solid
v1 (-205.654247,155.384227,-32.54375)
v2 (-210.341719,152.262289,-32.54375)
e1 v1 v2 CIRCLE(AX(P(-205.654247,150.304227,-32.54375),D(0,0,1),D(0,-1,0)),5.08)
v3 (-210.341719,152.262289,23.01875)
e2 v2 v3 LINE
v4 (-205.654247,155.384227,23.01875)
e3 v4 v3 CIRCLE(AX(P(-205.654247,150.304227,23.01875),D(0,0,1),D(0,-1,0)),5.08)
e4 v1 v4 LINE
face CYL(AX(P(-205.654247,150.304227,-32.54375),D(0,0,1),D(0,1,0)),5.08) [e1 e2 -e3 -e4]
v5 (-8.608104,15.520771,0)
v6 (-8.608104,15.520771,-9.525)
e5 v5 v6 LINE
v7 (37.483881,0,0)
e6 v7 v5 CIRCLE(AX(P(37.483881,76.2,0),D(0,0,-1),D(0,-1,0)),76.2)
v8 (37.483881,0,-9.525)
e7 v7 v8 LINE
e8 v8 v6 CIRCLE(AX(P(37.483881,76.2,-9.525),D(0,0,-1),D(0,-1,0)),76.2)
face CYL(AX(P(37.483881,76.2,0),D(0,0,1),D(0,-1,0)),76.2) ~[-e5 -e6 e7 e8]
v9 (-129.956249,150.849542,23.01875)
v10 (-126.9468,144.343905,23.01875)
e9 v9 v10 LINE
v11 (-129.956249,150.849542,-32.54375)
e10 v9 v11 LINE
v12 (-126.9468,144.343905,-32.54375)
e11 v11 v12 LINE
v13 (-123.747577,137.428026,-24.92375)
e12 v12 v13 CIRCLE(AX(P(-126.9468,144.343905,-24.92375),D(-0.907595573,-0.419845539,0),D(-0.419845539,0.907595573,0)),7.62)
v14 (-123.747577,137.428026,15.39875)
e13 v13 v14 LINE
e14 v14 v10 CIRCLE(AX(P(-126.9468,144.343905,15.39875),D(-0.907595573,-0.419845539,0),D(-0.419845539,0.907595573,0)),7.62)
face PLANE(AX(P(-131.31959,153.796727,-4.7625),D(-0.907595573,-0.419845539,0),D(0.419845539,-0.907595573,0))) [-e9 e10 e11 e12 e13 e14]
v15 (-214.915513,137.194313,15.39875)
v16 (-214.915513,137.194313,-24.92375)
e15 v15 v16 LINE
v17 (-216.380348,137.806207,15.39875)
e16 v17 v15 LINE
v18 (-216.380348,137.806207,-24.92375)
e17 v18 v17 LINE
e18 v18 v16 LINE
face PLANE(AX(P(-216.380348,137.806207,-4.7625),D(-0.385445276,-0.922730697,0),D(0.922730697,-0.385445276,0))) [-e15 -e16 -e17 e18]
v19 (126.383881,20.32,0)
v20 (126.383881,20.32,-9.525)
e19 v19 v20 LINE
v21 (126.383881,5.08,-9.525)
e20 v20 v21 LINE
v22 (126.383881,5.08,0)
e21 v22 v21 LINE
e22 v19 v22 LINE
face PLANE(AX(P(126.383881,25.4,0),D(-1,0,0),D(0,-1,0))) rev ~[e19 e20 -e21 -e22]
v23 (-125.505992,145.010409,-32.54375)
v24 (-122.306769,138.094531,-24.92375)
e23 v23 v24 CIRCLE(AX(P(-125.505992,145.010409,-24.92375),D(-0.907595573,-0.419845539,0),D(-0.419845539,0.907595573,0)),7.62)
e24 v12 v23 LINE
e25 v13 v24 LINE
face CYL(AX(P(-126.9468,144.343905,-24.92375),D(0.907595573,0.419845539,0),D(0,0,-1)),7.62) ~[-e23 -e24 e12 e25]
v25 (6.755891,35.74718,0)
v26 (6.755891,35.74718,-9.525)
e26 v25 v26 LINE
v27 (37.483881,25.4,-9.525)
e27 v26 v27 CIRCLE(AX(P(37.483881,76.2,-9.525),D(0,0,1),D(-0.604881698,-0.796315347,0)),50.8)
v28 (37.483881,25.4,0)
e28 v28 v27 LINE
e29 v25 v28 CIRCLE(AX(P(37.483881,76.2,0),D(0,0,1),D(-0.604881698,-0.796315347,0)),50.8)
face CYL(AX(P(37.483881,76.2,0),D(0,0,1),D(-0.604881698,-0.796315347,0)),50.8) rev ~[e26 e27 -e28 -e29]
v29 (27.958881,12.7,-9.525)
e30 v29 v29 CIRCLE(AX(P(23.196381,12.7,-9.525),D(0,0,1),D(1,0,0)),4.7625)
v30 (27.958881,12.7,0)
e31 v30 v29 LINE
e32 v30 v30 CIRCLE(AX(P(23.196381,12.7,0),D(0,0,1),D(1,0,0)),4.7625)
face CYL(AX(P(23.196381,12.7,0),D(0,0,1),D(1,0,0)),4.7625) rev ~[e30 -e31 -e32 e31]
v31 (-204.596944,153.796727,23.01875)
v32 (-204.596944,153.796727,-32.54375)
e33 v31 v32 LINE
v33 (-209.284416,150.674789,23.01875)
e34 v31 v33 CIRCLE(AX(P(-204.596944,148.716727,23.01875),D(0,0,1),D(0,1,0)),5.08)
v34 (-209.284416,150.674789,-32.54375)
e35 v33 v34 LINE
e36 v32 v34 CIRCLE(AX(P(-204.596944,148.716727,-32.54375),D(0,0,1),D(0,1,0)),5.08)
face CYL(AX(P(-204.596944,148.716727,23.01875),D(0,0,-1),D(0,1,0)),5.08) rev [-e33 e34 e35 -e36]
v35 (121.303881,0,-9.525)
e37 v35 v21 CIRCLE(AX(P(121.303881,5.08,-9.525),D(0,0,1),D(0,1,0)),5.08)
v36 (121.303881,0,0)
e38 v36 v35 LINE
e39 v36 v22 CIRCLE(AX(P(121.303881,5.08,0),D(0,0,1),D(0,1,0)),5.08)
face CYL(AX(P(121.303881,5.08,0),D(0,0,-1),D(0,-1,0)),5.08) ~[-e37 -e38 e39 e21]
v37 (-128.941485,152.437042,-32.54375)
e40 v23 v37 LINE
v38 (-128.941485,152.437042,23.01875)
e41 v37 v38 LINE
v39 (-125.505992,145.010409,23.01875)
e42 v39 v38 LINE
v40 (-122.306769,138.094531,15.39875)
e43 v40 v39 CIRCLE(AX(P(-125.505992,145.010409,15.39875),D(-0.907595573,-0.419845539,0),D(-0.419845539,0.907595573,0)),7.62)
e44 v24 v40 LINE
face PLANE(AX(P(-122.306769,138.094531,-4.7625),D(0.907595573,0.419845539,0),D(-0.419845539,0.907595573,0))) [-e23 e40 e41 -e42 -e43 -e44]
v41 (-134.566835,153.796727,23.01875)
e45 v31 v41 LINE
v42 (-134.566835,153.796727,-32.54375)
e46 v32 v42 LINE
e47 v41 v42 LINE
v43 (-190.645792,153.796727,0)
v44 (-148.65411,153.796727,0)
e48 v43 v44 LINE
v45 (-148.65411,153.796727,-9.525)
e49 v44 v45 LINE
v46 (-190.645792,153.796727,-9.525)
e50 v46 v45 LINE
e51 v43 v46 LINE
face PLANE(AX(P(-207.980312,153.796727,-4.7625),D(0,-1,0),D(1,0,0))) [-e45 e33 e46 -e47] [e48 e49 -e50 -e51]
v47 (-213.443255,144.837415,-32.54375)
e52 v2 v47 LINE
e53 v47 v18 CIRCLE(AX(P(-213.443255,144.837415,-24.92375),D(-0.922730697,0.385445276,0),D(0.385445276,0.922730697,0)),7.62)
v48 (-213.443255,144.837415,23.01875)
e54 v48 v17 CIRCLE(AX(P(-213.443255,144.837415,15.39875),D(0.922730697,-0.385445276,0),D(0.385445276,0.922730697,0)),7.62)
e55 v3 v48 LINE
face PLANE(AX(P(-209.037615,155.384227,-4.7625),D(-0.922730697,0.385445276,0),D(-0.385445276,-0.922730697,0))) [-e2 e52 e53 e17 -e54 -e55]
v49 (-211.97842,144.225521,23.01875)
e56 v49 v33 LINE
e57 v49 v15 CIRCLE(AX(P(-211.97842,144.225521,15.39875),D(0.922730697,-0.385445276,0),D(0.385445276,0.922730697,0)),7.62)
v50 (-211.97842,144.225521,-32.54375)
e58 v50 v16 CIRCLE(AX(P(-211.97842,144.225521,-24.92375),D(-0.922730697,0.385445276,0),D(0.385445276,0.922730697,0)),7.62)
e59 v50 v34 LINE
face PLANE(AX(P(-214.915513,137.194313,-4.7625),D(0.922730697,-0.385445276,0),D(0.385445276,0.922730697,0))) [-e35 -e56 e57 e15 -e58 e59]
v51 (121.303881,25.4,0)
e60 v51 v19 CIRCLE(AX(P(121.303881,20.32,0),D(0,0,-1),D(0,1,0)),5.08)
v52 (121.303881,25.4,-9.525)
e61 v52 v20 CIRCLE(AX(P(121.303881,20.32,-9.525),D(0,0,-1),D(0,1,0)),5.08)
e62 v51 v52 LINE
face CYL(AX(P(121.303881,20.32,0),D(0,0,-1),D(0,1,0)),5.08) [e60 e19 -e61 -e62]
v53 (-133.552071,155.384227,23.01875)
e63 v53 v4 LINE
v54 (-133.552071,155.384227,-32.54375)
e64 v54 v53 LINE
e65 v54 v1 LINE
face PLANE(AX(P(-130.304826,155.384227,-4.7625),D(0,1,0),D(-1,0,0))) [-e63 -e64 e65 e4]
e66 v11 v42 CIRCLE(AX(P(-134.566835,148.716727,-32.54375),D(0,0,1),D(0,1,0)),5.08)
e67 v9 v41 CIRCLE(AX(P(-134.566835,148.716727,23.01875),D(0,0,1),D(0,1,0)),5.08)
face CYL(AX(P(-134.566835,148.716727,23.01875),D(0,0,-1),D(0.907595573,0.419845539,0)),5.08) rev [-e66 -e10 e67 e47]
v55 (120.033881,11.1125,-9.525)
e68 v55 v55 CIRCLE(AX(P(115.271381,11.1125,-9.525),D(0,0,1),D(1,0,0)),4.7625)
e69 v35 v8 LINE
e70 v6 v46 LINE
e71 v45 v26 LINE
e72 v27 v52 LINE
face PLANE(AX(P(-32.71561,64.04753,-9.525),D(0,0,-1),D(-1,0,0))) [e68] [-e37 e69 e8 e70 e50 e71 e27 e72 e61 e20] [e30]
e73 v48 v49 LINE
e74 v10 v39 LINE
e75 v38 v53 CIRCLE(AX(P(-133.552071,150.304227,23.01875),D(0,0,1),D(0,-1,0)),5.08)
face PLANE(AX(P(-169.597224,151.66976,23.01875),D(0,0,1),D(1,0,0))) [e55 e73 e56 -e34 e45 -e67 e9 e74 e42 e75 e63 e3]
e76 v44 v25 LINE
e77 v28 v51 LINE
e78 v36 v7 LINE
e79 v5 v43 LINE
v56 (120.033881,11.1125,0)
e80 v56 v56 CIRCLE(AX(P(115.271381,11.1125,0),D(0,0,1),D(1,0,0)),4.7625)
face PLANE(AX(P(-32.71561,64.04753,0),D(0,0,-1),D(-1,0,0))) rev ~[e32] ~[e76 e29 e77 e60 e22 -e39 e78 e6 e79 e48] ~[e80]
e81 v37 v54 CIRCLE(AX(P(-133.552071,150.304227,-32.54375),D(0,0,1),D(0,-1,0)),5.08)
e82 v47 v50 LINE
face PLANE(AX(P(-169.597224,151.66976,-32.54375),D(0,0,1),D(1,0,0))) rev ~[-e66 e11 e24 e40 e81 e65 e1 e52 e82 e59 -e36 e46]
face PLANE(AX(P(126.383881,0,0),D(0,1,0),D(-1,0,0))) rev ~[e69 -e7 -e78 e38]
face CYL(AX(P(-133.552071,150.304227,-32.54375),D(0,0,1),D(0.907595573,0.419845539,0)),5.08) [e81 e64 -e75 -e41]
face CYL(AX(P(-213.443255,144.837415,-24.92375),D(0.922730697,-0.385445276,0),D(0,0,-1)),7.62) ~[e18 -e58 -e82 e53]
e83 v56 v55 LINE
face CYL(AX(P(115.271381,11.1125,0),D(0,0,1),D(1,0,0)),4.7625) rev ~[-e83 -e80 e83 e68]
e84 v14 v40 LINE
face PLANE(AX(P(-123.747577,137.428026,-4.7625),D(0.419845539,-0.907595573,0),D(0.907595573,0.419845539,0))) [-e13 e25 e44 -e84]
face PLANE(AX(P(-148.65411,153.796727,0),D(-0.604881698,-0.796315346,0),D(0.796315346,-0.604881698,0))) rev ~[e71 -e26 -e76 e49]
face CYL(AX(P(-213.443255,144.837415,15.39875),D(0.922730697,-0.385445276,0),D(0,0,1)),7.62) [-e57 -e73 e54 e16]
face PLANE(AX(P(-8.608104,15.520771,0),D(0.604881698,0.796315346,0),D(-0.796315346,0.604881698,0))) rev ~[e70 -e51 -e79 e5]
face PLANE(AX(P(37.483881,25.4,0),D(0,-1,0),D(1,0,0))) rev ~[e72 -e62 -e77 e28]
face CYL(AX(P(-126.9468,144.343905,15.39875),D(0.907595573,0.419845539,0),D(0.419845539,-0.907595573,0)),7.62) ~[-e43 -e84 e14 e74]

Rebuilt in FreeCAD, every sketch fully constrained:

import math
import FreeCAD as App
import Part
import Sketcher

V = App.Vector
Q = App.Units.Quantity


def edges_at(feature, points):
    """Names of the edges that pass closest to the given points."""
    edges = feature.Shape.Edges
    near = lambda p: min(range(len(edges)), key=lambda i: edges[i].distToShape(Part.Vertex(*p))[0])
    return sorted({f"Edge{near(p) + 1}" for p in points})

doc = App.newDocument("Part")
body = doc.addObject("PartDesign::Body", "Body")

sketch1 = body.newObject("Sketcher::SketchObject", "Sketch")
sketch1.AttachmentSupport = (doc.getObject("XY_Plane"), [""])
sketch1.MapMode = "FlatFace"
sketch1.addGeometry(Part.LineSegment(V(37.483881, 0, 0), V(126.383881, 0, 0)), False)
sketch1.addGeometry(Part.LineSegment(V(126.383881, 0, 0), V(126.383881, 25.4, 0)), False)
sketch1.addGeometry(Part.LineSegment(V(126.383881, 25.4, 0), V(37.483881, 25.4, 0)), False)
sketch1.addGeometry(Part.ArcOfCircle(Part.Circle(V(37.483881, 76.2, 0), V(0, 0, 1), 50.8), math.radians(-127.220329), math.radians(-90)), False)
sketch1.addGeometry(Part.LineSegment(V(6.755891, 35.74718, 0), V(-148.65411, 153.796727, 0)), False)
sketch1.addGeometry(Part.LineSegment(V(-148.65411, 153.796727, 0), V(-190.645792, 153.796727, 0)), False)
sketch1.addGeometry(Part.LineSegment(V(-190.645792, 153.796727, 0), V(-8.608104, 15.520771, 0)), False)
sketch1.addGeometry(Part.ArcOfCircle(Part.Circle(V(37.483881, 76.2, 0), V(0, 0, 1), 76.2), math.radians(-127.220329), math.radians(-90)), False)
sketch1.addConstraint(Sketcher.Constraint("Coincident", 0, 2, 1, 1))
sketch1.addConstraint(Sketcher.Constraint("Coincident", 1, 2, 2, 1))
sketch1.addConstraint(Sketcher.Constraint("Tangent", 2, 2, 3, 2))
sketch1.addConstraint(Sketcher.Constraint("Tangent", 3, 1, 4, 1))
sketch1.addConstraint(Sketcher.Constraint("Coincident", 4, 2, 5, 1))
sketch1.addConstraint(Sketcher.Constraint("Coincident", 5, 2, 6, 1))
sketch1.addConstraint(Sketcher.Constraint("Tangent", 6, 2, 7, 1))
sketch1.addConstraint(Sketcher.Constraint("Tangent", 7, 2, 0, 1))
sketch1.addConstraint(Sketcher.Constraint("Horizontal", 0))
sketch1.addConstraint(Sketcher.Constraint("Vertical", 1))
sketch1.addConstraint(Sketcher.Constraint("Horizontal", 2))
sketch1.addConstraint(Sketcher.Constraint("Horizontal", 5))
sketch1.addConstraint(Sketcher.Constraint("Coincident", 7, 3, 3, 3))
sketch1.addConstraint(Sketcher.Constraint("PointOnObject", 0, 2, -1))
sketch1.addConstraint(Sketcher.Constraint("Parallel", 4, 6))
sketch1.addConstraint(Sketcher.Constraint("Radius", 3, Q("2 in")))
sketch1.addConstraint(Sketcher.Constraint("Radius", 7, Q("3 in")))
sketch1.addConstraint(Sketcher.Constraint("Distance", 6, Q("9 in")))
sketch1.addConstraint(Sketcher.Constraint("DistanceX", 0, 1, 0, 2, Q("3.5 in")))
sketch1.addConstraint(Sketcher.Constraint("DistanceX", 4, 2, 3, 1, 155.410001))
sketch1.addConstraint(Sketcher.Constraint("DistanceX", -1, 1, 3, 3, 37.483881))
pad1 = body.newObject("PartDesign::Pad", "Pad")
pad1.Profile = sketch1
pad1.Length = Q("0.375 in")
pad1.Reversed = True
doc.recompute()

fillet = body.newObject("PartDesign::Fillet", "Fillet")
fillet.Base = (pad1, edges_at(pad1, [(126.384, 0, -4.763), (126.384, 25.4, -4.763)]))
fillet.Radius = Q("0.2 in")

sketch2 = body.newObject("Sketcher::SketchObject", "Sketch001")
sketch2.AttachmentSupport = (doc.getObject("XY_Plane"), [""])
sketch2.MapMode = "FlatFace"
sketch2.addGeometry(Part.Circle(V(115.271381, 11.1125, 0), V(0, 0, 1), 4.7625), False)
sketch2.addGeometry(Part.Circle(V(23.196381, 12.7, 0), V(0, 0, 1), 4.7625), False)
sketch2.addConstraint(Sketcher.Constraint("Equal", 0, 1))
sketch2.addConstraint(Sketcher.Constraint("Diameter", 0, Q("0.375 in")))
sketch2.addConstraint(Sketcher.Constraint("DistanceY", -1, 1, 1, 3, Q("0.5 in")))
sketch2.addConstraint(Sketcher.Constraint("DistanceY", -1, 1, 0, 3, Q("0.4375 in")))
sketch2.addConstraint(Sketcher.Constraint("DistanceX", 1, 3, 0, 3, Q("3.625 in")))
sketch2.addConstraint(Sketcher.Constraint("DistanceX", -1, 1, 0, 3, 115.271381))
pocket1 = body.newObject("PartDesign::Pocket", "Pocket")
pocket1.Profile = sketch2
pocket1.Type = "ThroughAll"

sketch3 = body.newObject("Sketcher::SketchObject", "Sketch002")
sketch3.AttachmentSupport = (doc.getObject("XY_Plane"), [""])
sketch3.MapMode = "FlatFace"
sketch3.AttachmentOffset = App.Placement(V(0, 0, -0.1875 * 25.4), App.Rotation())
sketch3.addGeometry(Part.LineSegment(V(-131.31959, 153.796727, 0), V(-123.747577, 137.428026, 0)), False)
sketch3.addGeometry(Part.LineSegment(V(-123.747577, 137.428026, 0), V(-122.306769, 138.094531, 0)), False)
sketch3.addGeometry(Part.LineSegment(V(-122.306769, 138.094531, 0), V(-130.304826, 155.384227, 0)), False)
sketch3.addGeometry(Part.LineSegment(V(-130.304826, 155.384227, 0), V(-209.037615, 155.384227, 0)), False)
sketch3.addGeometry(Part.LineSegment(V(-209.037615, 155.384227, 0), V(-216.380348, 137.806207, 0)), False)
sketch3.addGeometry(Part.LineSegment(V(-216.380348, 137.806207, 0), V(-214.915513, 137.194313, 0)), False)
sketch3.addGeometry(Part.LineSegment(V(-214.915513, 137.194313, 0), V(-207.980312, 153.796727, 0)), False)
sketch3.addGeometry(Part.LineSegment(V(-207.980312, 153.796727, 0), V(-131.31959, 153.796727, 0)), False)
sketch3.addConstraint(Sketcher.Constraint("Coincident", 0, 2, 1, 1))
sketch3.addConstraint(Sketcher.Constraint("Coincident", 1, 2, 2, 1))
sketch3.addConstraint(Sketcher.Constraint("Coincident", 2, 2, 3, 1))
sketch3.addConstraint(Sketcher.Constraint("Coincident", 3, 2, 4, 1))
sketch3.addConstraint(Sketcher.Constraint("Coincident", 4, 2, 5, 1))
sketch3.addConstraint(Sketcher.Constraint("Coincident", 5, 2, 6, 1))
sketch3.addConstraint(Sketcher.Constraint("Coincident", 6, 2, 7, 1))
sketch3.addConstraint(Sketcher.Constraint("Coincident", 7, 2, 0, 1))
sketch3.addConstraint(Sketcher.Constraint("Horizontal", 3))
sketch3.addConstraint(Sketcher.Constraint("Horizontal", 7))
sketch3.addConstraint(Sketcher.Constraint("Perpendicular", 0, 1))
sketch3.addConstraint(Sketcher.Constraint("Perpendicular", 1, 2))
sketch3.addConstraint(Sketcher.Constraint("Perpendicular", 4, 5))
sketch3.addConstraint(Sketcher.Constraint("Perpendicular", 5, 6))
sketch3.addConstraint(Sketcher.Constraint("Equal", 2, 4))
sketch3.addConstraint(Sketcher.Constraint("Equal", 1, 5))
sketch3.addConstraint(Sketcher.Constraint("Distance", 2, Q("0.75 in")))
sketch3.addConstraint(Sketcher.Constraint("Distance", 1, Q("0.0625 in")))
sketch3.addConstraint(Sketcher.Constraint("DistanceY", 6, 2, 3, 2, Q("0.0625 in")))
sketch3.addConstraint(Sketcher.Constraint("DistanceX", 4, 2, 2, 2, Q("3.3888 in")))
sketch3.addConstraint(Sketcher.Constraint("DistanceX", 3, 2, 3, 1, 78.732789))
sketch3.addConstraint(Sketcher.Constraint("DistanceY", 0, 2, 2, 2, 17.9562))
sketch3.addConstraint(Sketcher.Constraint("DistanceX", 1, 2, -1, 1, 122.306769))
sketch3.addConstraint(Sketcher.Constraint("DistanceY", -1, 1, 1, 2, 138.094531))
pad2 = body.newObject("PartDesign::Pad", "Pad001")
pad2.Profile = sketch3
pad2.Length = Q("2.1875 in")
pad2.Midplane = True
doc.recompute()

fillet2 = body.newObject("PartDesign::Fillet", "Fillet001")
fillet2.Base = (pad2, edges_at(pad2, [
    (-207.98, 153.797, -4.763),
    (-131.32, 153.797, -4.763),
    (-130.305, 155.384, -4.763),
    (-209.038, 155.384, -4.763),
]))
fillet2.Radius = Q("0.2 in")
doc.recompute()

fillet3 = body.newObject("PartDesign::Fillet", "Fillet002")
fillet3.Base = (fillet2, edges_at(fillet2, [
    (-123.027, 137.761, -32.544),
    (-215.648, 137.5, -32.544),
    (-123.027, 137.761, 23.019),
    (-215.648, 137.5, 23.019),
]))
fillet3.Radius = Q("0.3 in")

doc.recompute()
